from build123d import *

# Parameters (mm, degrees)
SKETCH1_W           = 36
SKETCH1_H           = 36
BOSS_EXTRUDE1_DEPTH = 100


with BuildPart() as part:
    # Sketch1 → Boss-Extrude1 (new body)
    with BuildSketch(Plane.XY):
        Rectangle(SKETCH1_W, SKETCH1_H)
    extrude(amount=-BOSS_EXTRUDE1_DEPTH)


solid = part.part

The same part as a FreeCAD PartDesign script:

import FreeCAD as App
import Part
import Sketcher
Q = App.Units.Quantity

doc = App.newDocument("Part")
body = doc.addObject("PartDesign::Body", "Body")

# Sketch on XY plane
sketch1 = doc.addObject("Sketcher::SketchObject", "Sketch")
body.addObject(sketch1)
sketch1.AttachmentSupport = (doc.XY_Plane, [""])
sketch1.MapMode = "FlatFace"
sketch1.addGeometry([
    Part.LineSegment(App.Vector(-18, 18, 0), App.Vector(-18, -18, 0)),
    Part.LineSegment(App.Vector(-18, -18, 0), App.Vector(18, -18, 0)),
    Part.LineSegment(App.Vector(18, -18, 0), App.Vector(18, 18, 0)),
    Part.LineSegment(App.Vector(18, 18, 0), App.Vector(-18, 18, 0)),
], False)
sketch1.addConstraint([
    Sketcher.Constraint("Coincident", 0, 2, 1, 1),
    Sketcher.Constraint("Coincident", 1, 2, 2, 1),
    Sketcher.Constraint("Coincident", 2, 2, 3, 1),
    Sketcher.Constraint("Coincident", 3, 2, 0, 1),
    Sketcher.Constraint("Vertical", 0),
    Sketcher.Constraint("Horizontal", 1),
    Sketcher.Constraint("Vertical", 2),
    Sketcher.Constraint("Horizontal", 3),
    Sketcher.Constraint("Symmetric", 0, 2, 2, 2, -1, 1),
    Sketcher.Constraint("Equal", 3, 0),
    Sketcher.Constraint("DistanceX", 1, 1, 1, 2, Q("36 mm")),
])
pad1 = doc.addObject("PartDesign::Pad", "Pad")
body.addObject(pad1)
pad1.Profile = sketch1
pad1.Length = 100
pad1.Reversed = True

doc.recompute()
